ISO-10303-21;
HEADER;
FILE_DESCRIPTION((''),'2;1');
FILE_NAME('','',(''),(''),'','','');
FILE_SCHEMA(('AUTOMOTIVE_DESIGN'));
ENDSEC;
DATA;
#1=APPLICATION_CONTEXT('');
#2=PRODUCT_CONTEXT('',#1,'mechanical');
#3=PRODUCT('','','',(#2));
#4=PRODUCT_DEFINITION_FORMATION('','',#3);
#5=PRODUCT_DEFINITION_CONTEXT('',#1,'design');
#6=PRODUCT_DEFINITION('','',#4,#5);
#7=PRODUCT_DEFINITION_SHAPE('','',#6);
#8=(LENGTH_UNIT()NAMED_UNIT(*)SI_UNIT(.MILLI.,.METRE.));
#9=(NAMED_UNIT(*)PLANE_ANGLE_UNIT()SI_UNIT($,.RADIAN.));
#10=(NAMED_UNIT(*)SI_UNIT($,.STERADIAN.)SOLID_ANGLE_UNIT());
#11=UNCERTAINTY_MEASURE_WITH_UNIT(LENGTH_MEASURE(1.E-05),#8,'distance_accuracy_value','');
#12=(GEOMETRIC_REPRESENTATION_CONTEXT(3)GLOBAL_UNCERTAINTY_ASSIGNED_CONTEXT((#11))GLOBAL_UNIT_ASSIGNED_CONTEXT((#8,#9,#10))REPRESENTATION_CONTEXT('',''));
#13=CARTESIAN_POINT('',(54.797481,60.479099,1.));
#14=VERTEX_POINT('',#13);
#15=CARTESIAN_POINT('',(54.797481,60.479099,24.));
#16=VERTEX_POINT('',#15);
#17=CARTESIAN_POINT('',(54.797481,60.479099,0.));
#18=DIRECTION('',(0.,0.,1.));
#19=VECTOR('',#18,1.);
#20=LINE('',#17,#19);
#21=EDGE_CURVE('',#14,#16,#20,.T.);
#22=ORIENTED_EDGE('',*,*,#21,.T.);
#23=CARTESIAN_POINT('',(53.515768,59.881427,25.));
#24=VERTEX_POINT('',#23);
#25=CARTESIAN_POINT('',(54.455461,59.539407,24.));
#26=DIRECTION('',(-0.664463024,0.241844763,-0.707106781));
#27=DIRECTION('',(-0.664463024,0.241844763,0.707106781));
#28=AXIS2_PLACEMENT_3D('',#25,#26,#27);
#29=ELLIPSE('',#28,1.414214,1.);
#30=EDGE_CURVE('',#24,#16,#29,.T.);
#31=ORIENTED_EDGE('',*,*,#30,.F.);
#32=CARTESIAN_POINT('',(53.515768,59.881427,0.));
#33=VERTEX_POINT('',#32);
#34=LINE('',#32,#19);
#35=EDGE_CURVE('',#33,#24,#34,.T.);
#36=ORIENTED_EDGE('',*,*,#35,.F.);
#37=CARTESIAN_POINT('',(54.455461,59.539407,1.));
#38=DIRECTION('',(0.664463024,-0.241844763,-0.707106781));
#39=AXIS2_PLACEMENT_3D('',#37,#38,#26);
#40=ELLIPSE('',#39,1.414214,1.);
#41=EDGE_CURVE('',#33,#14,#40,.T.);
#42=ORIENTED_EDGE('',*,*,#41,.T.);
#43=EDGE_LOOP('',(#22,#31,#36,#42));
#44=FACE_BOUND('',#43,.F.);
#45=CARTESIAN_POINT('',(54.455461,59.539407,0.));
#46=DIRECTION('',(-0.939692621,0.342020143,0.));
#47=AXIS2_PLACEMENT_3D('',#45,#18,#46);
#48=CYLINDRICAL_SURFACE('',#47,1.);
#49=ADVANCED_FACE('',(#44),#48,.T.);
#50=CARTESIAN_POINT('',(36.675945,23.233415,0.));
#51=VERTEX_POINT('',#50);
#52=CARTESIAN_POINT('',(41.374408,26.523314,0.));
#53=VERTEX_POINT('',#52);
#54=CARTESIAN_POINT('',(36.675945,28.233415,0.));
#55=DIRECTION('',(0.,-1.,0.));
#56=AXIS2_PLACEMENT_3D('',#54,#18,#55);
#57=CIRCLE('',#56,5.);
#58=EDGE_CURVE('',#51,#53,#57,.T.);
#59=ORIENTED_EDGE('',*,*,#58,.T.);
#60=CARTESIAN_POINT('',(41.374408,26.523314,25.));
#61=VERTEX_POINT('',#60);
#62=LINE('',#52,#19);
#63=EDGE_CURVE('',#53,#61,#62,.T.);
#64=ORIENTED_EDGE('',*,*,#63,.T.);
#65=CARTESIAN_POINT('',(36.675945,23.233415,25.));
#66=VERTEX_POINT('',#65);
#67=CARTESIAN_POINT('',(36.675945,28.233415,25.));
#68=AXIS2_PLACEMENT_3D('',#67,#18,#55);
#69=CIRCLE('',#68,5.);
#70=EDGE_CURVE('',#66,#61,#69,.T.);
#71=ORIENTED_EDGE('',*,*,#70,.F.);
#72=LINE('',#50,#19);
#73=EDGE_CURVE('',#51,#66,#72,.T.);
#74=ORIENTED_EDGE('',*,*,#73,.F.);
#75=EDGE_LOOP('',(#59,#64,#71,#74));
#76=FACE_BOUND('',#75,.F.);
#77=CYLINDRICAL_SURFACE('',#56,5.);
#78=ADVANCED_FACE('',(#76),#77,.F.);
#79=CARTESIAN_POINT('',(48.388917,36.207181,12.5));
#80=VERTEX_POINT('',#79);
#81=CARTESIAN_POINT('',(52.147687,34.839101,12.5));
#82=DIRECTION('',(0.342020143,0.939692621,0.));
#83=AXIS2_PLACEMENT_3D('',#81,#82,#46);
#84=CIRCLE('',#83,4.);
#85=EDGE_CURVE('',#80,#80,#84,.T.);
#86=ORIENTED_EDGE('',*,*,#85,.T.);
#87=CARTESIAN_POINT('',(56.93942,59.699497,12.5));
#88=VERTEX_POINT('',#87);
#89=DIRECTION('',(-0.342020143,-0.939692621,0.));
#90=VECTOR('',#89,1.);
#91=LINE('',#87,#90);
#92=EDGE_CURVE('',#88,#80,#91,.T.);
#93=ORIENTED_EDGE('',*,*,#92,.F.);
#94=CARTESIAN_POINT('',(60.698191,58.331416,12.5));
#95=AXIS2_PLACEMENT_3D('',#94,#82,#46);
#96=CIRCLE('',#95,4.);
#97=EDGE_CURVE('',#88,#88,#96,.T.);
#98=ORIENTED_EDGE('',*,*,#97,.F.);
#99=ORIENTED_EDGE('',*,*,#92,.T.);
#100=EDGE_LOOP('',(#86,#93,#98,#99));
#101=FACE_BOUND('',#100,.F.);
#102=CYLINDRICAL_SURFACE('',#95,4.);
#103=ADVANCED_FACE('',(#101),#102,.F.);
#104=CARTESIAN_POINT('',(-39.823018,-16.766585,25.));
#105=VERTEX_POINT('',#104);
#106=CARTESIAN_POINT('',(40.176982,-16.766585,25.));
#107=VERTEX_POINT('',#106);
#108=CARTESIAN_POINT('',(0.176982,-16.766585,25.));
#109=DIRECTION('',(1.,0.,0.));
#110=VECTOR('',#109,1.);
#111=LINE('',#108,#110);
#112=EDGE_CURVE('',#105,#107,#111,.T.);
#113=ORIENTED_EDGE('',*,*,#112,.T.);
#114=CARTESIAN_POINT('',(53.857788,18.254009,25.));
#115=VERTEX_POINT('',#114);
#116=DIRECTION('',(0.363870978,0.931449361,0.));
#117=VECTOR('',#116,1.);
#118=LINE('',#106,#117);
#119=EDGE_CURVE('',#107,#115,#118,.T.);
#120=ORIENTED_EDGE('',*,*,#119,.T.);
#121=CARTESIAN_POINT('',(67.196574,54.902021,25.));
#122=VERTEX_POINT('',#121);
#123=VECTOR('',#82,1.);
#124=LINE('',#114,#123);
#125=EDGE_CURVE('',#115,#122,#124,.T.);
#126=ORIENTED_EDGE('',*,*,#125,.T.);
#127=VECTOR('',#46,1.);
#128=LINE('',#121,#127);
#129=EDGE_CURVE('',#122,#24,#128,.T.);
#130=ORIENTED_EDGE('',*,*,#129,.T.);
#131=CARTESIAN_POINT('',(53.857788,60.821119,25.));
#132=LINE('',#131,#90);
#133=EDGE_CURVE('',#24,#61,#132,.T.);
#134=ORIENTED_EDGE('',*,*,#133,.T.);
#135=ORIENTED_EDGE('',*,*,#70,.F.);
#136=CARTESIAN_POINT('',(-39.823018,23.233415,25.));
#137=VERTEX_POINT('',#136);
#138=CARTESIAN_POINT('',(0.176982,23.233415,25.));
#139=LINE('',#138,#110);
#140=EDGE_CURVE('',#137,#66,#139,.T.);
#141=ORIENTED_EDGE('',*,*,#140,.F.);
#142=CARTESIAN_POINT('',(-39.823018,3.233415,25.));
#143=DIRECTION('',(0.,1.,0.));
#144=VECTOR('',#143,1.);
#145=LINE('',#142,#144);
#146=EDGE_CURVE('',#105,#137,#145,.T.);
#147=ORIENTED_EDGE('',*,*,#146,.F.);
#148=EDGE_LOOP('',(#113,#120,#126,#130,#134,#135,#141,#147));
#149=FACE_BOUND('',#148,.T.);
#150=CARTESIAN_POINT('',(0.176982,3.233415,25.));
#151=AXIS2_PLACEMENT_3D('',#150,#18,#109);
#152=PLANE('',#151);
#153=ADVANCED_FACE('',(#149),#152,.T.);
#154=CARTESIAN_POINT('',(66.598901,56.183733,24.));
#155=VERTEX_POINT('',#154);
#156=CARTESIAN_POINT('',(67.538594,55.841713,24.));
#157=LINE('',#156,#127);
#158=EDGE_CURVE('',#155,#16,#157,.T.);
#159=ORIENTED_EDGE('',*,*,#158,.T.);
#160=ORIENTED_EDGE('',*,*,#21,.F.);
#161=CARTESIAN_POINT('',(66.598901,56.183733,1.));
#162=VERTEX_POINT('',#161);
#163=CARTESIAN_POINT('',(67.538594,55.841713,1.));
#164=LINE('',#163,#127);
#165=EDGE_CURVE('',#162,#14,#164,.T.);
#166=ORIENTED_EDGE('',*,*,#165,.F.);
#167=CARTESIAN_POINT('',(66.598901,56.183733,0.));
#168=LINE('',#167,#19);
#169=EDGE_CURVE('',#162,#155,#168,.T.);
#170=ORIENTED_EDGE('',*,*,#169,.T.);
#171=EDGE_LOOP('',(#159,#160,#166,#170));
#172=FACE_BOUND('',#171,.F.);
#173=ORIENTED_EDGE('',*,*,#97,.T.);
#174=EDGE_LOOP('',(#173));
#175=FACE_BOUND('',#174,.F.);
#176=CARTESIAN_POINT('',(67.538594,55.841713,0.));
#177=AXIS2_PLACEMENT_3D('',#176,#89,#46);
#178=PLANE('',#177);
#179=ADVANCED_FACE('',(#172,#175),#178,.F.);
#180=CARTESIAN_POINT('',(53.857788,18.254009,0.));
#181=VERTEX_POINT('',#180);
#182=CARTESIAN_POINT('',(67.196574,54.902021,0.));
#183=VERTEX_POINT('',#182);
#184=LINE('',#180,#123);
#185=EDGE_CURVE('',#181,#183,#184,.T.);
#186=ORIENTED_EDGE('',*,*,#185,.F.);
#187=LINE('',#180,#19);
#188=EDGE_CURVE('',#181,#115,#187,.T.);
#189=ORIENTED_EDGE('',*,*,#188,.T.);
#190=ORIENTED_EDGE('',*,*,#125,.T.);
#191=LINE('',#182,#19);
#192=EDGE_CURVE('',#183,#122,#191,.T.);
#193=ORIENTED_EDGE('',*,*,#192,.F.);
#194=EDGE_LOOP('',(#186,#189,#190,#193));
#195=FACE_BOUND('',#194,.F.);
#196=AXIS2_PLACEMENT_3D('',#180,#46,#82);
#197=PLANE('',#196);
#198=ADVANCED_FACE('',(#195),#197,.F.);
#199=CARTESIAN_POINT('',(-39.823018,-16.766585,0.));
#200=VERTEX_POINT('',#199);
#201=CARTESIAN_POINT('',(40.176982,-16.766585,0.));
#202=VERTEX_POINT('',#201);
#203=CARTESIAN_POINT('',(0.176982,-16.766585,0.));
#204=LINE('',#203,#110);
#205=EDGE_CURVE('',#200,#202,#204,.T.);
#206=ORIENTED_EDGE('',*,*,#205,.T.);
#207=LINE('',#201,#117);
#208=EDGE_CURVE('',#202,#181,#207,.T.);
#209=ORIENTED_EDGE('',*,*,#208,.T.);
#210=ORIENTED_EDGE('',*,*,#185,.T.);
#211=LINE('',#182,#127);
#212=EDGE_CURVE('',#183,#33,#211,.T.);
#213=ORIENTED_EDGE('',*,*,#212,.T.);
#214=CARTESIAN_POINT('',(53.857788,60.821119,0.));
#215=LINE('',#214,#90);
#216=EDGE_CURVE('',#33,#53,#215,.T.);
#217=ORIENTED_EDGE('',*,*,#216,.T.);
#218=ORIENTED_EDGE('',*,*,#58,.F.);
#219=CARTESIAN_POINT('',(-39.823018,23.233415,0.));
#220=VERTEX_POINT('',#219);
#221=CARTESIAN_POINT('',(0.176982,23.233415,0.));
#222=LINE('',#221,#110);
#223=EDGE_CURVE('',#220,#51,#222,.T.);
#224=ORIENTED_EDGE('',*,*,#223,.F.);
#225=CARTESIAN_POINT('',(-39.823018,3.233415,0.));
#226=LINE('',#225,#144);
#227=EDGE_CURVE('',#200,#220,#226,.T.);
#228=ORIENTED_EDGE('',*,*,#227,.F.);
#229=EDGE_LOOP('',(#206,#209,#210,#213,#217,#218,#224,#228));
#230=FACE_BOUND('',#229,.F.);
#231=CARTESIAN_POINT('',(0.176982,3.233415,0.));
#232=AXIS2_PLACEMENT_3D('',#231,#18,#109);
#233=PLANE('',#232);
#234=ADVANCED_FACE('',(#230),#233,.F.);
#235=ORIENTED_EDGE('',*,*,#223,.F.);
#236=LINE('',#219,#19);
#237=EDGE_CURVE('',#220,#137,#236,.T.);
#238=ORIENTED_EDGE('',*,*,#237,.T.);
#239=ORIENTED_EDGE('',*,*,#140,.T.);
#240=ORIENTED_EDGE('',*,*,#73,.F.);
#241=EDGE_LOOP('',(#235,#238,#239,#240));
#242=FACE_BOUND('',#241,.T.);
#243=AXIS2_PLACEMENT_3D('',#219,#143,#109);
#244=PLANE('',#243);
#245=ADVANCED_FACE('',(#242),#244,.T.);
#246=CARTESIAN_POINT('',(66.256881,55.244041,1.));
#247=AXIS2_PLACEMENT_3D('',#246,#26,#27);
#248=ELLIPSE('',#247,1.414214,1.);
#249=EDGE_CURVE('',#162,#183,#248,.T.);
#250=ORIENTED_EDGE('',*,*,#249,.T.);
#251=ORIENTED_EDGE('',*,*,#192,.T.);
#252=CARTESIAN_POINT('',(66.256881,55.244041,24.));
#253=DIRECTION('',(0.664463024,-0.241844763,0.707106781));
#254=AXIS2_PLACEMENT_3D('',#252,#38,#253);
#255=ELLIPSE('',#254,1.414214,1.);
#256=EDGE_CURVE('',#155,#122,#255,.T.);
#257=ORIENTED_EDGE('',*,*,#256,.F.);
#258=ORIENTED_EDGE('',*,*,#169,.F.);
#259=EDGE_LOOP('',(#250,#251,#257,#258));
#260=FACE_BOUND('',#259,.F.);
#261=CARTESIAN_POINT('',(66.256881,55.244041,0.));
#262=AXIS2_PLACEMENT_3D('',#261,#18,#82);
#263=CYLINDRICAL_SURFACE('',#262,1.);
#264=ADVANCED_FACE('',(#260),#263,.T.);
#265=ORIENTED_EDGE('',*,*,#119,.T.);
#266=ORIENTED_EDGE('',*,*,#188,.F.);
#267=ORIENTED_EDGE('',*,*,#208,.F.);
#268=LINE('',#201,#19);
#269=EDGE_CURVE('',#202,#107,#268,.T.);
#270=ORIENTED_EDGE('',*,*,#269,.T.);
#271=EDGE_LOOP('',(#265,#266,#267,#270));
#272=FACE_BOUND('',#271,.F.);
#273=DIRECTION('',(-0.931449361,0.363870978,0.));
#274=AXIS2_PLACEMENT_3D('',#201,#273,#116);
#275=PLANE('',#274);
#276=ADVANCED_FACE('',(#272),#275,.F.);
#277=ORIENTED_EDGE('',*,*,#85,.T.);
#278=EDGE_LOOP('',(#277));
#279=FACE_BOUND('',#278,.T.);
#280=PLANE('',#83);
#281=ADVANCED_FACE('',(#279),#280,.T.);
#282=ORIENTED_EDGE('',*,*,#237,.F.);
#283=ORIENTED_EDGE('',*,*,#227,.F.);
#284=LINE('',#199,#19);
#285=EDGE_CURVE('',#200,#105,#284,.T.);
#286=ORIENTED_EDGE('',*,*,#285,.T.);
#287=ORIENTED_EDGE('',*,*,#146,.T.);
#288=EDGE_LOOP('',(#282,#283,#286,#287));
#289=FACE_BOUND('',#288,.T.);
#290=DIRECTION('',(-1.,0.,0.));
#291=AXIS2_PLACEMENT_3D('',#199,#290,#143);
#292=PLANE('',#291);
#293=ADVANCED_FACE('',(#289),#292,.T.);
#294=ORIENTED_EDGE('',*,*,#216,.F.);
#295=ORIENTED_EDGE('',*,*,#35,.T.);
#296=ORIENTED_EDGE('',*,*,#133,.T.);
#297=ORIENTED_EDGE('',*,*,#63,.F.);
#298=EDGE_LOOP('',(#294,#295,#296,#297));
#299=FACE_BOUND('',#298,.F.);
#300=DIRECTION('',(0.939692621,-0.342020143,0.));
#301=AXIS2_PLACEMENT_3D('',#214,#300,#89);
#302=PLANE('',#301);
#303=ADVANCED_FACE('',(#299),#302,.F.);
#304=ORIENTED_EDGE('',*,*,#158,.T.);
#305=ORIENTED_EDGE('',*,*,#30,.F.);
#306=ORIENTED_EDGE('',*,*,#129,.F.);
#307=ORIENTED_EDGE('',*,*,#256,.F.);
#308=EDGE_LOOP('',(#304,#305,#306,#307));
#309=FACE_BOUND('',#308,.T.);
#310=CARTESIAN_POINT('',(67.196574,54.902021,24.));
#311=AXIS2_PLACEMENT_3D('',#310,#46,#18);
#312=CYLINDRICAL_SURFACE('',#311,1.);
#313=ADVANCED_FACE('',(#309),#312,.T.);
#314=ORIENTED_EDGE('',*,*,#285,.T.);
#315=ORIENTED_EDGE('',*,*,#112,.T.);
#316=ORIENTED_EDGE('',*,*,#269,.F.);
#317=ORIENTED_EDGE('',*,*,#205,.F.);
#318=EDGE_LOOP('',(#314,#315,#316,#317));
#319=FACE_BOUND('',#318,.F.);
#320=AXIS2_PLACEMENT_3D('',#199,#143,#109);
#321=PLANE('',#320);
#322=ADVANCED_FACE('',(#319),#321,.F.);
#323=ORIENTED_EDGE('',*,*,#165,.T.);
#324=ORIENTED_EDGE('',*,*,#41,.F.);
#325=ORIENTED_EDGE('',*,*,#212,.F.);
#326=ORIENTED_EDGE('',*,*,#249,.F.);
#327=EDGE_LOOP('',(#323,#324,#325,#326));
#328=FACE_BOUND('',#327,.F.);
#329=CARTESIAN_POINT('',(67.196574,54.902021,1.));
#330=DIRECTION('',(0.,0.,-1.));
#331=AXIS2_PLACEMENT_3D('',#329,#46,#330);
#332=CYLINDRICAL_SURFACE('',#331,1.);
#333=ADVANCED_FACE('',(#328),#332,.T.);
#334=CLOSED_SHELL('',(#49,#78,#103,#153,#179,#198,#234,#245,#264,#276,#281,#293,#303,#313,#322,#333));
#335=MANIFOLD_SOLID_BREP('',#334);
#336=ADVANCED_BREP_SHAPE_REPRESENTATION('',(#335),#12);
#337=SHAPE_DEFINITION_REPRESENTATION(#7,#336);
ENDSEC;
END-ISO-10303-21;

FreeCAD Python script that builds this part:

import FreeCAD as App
import Part
import Sketcher
Q = App.Units.Quantity


def edges_at(feature, points):
    """Names of the edges that pass closest to the given points."""
    edges = feature.Shape.Edges
    near = lambda p: min(range(len(edges)), key=lambda i: edges[i].distToShape(Part.Vertex(*p))[0])
    return sorted({f"Edge{near(p) + 1}" for p in points})

doc = App.newDocument("Part")
params = doc.addObject("Spreadsheet::Sheet", "Params")
for row, (alias, value) in enumerate([
    ("sketch1_width", "80 mm"),
    ("sketch1_height", "40 mm"),
    ("sketch1_length", "40 mm"),
    ("pad1_length", "25 mm"),
    ("sketch2_diameter", "8 mm"),
    ("pocket1_length", "25 mm"),
    ("fillet_radius", "5 mm"),
    ("fillet2_radius", "1 mm"),
], start=1):
    params.set(f"A{row}", alias)
    params.set(f"B{row}", "=" + value)
    params.setAlias(f"B{row}", alias)

body = doc.addObject("PartDesign::Body", "Body")

sketch1 = body.newObject("Sketcher::SketchObject", "Sketch")
sketch1.AttachmentSupport = (doc.getObject("XY_Plane"), [""])
sketch1.MapMode = "FlatFace"
sketch1.addGeometry(Part.LineSegment(App.Vector(-40, 23, 0), App.Vector(-40, -17, 0)), False)
sketch1.addGeometry(Part.LineSegment(App.Vector(-40, -17, 0), App.Vector(40, -17, 0)), False)
sketch1.addGeometry(Part.LineSegment(App.Vector(40, -17, 0), App.Vector(54, 18, 0)), False)
sketch1.addGeometry(Part.LineSegment(App.Vector(54, 18, 0), App.Vector(68, 56, 0)), False)
sketch1.addGeometry(Part.LineSegment(App.Vector(68, 56, 0), App.Vector(54, 61, 0)), False)
sketch1.addGeometry(Part.LineSegment(App.Vector(54, 61, 0), App.Vector(40, 23, 0)), False)
sketch1.addGeometry(Part.LineSegment(App.Vector(40, 23, 0), App.Vector(-40, 23, 0)), False)
sketch1.addConstraint(Sketcher.Constraint("Coincident", 0, 2, 1, 1))
sketch1.addConstraint(Sketcher.Constraint("Coincident", 1, 2, 2, 1))
sketch1.addConstraint(Sketcher.Constraint("Coincident", 2, 2, 3, 1))
sketch1.addConstraint(Sketcher.Constraint("Coincident", 3, 2, 4, 1))
sketch1.addConstraint(Sketcher.Constraint("Coincident", 4, 2, 5, 1))
sketch1.addConstraint(Sketcher.Constraint("Coincident", 5, 2, 6, 1))
sketch1.addConstraint(Sketcher.Constraint("Coincident", 6, 2, 0, 1))
sketch1.addConstraint(Sketcher.Constraint("Vertical", 0))
sketch1.addConstraint(Sketcher.Constraint("Horizontal", 1))
sketch1.addConstraint(Sketcher.Constraint("Horizontal", 6))
sketch1.addConstraint(Sketcher.Constraint("Perpendicular", 3, 4))
sketch1.addConstraint(Sketcher.Constraint("Perpendicular", 4, 5))
sketch1.addConstraint(Sketcher.Constraint("Vertical", 2, 2, 4, 2))
sketch1.addConstraint(Sketcher.Constraint("Vertical", 1, 2, 5, 2))
sketch1.addConstraint(Sketcher.Constraint("Equal", 3, 5))
sketch1.addConstraint(Sketcher.Constraint("DistanceX", 1, 1, 1, 2, 80.0))
sketch1.addConstraint(Sketcher.Constraint("DistanceY", 0, 2, 0, 1, 40.0))
sketch1.addConstraint(Sketcher.Constraint("Angle", 3, Q("70 deg")))
sketch1.addConstraint(Sketcher.Constraint("Distance", 3, 40.0))
sketch1.addConstraint(Sketcher.Constraint("DistanceX", -1, 1, 2, 2, 53.857788))
sketch1.addConstraint(Sketcher.Constraint("DistanceY", -1, 1, 2, 2, 18.254009))
sketch1.setExpression("Constraints[15]", "Params.sketch1_width")
sketch1.setExpression("Constraints[16]", "Params.sketch1_height")
sketch1.setExpression("Constraints[18]", "Params.sketch1_length")
pad1 = body.newObject("PartDesign::Pad", "Pad")
pad1.Profile = sketch1
pad1.setExpression("Length", "Params.pad1_length")

sketch2 = body.newObject("Sketcher::SketchObject", "Sketch001")
sketch2.Placement = App.Placement(App.Vector(25.847695, 71.015959, 0), App.Rotation(App.Vector(-0.939692621, 0.342020143, 0), App.Vector(0, 0, 1), App.Vector(0.342020143, 0.939692621, 0), "ZXY"))
sketch2.addGeometry(Part.Circle(App.Vector(-37.1, 12.5, 0), App.Vector(0, 0, 1), 4), False)
sketch2.addConstraint(Sketcher.Constraint("Diameter", 0, 8.0))
sketch2.addConstraint(Sketcher.Constraint("DistanceY", -1, 1, 0, 3, 12.5))
sketch2.addConstraint(Sketcher.Constraint("DistanceX", 0, 3, -1, 1, 37.087123))
sketch2.setExpression("Constraints[0]", "Params.sketch2_diameter")
pocket1 = body.newObject("PartDesign::Pocket", "Pocket")
pocket1.Profile = sketch2
pocket1.setExpression("Length", "Params.pocket1_length")
doc.recompute()

fillet = body.newObject("PartDesign::Fillet", "Fillet")
fillet.Base = (pocket1, edges_at(pocket1, [(40.177, 23.233, 12.5)]))
fillet.setExpression("Radius", "Params.fillet_radius")
doc.recompute()

fillet2 = body.newObject("PartDesign::Fillet", "Fillet001")
fillet2.Base = (fillet, edges_at(fillet, [
    (67.539, 55.842, 12.5),
    (60.698, 58.331, 0),
    (53.858, 60.821, 12.5),
    (60.698, 58.331, 25),
]))
fillet2.setExpression("Radius", "Params.fillet2_radius")

doc.recompute()
